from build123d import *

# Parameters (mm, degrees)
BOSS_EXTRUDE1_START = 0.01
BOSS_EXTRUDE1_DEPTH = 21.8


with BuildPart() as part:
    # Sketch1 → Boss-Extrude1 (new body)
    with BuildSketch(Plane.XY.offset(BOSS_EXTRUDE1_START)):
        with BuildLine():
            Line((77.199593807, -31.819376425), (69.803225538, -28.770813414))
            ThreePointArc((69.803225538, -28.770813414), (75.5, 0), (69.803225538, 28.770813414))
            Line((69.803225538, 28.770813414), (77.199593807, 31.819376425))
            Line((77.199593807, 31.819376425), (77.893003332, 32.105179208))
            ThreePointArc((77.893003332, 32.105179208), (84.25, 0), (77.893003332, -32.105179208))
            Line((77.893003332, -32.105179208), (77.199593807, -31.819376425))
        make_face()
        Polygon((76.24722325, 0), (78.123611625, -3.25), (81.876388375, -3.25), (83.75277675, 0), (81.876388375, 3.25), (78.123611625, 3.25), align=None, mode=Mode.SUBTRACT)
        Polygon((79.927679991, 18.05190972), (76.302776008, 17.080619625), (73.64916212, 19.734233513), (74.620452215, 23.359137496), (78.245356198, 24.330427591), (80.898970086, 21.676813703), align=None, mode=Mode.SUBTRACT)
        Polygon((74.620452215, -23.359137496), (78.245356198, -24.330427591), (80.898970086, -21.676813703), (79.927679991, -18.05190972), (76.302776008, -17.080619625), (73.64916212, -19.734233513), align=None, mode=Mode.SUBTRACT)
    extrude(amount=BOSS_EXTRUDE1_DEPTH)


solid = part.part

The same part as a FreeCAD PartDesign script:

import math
import FreeCAD as App
import Part
import Sketcher
from FreeCAD import Vector
Q = App.Units.Quantity

doc = App.newDocument("Part")
body = doc.addObject("PartDesign::Body", "Body")

# Sketch on XY plane
sketch1 = doc.addObject("Sketcher::SketchObject", "Sketch")
body.addObject(sketch1)
sketch1.AttachmentSupport = (doc.XY_Plane, [""])
sketch1.MapMode = "FlatFace"
sketch1.AttachmentOffset = App.Placement(Vector(0, 0, 0.01), App.Rotation())
sketch1.addGeometry([
    Part.LineSegment(Vector(69.803226, -28.770813, 0), Vector(77.199594, -31.819376, 0)),  # 0
    Part.LineSegment(Vector(77.199594, -31.819376, 0), Vector(77.893003, -32.105179, 0)),  # 1
    Part.ArcOfCircle(Part.Circle(Vector(0, 0, 0), Vector(0, 0, 1), 84.25), math.radians(-22.4), math.radians(22.4)),  # 2
    Part.LineSegment(Vector(77.893003, 32.105179, 0), Vector(77.199594, 31.819376, 0)),  # 3
    Part.LineSegment(Vector(77.199594, 31.819376, 0), Vector(69.803226, 28.770813, 0)),  # 4
    Part.ArcOfCircle(Part.Circle(Vector(0, 0, 0), Vector(0, 0, 1), 75.5), math.radians(-22.4), math.radians(22.4)),  # 5
    Part.LineSegment(Vector(74.620452, -23.359137, 0), Vector(73.649162, -19.734234, 0)),  # 6
    Part.LineSegment(Vector(73.649162, -19.734234, 0), Vector(76.302776, -17.08062, 0)),  # 7
    Part.LineSegment(Vector(76.302776, -17.08062, 0), Vector(79.92768, -18.05191, 0)),  # 8
    Part.LineSegment(Vector(79.92768, -18.05191, 0), Vector(80.89897, -21.676814, 0)),  # 9
    Part.LineSegment(Vector(80.89897, -21.676814, 0), Vector(78.245356, -24.330428, 0)),  # 10
    Part.LineSegment(Vector(78.245356, -24.330428, 0), Vector(74.620452, -23.359137, 0)),  # 11
    Part.LineSegment(Vector(76.247223, 0, 0), Vector(78.123612, 3.25, 0)),  # 12
    Part.LineSegment(Vector(78.123612, 3.25, 0), Vector(81.876388, 3.25, 0)),  # 13
    Part.LineSegment(Vector(81.876388, 3.25, 0), Vector(83.752777, 0, 0)),  # 14
    Part.LineSegment(Vector(83.752777, 0, 0), Vector(81.876388, -3.25, 0)),  # 15
    Part.LineSegment(Vector(81.876388, -3.25, 0), Vector(78.123612, -3.25, 0)),  # 16
    Part.LineSegment(Vector(78.123612, -3.25, 0), Vector(76.247223, 0, 0)),  # 17
    Part.LineSegment(Vector(79.92768, 18.05191, 0), Vector(76.302776, 17.08062, 0)),  # 18
    Part.LineSegment(Vector(76.302776, 17.08062, 0), Vector(73.649162, 19.734234, 0)),  # 19
    Part.LineSegment(Vector(73.649162, 19.734234, 0), Vector(74.620452, 23.359137, 0)),  # 20
    Part.LineSegment(Vector(74.620452, 23.359137, 0), Vector(78.245356, 24.330428, 0)),  # 21
    Part.LineSegment(Vector(78.245356, 24.330428, 0), Vector(80.89897, 21.676814, 0)),  # 22
    Part.LineSegment(Vector(80.89897, 21.676814, 0), Vector(79.92768, 18.05191, 0)),  # 23
], False)
sketch1.addConstraint([
    Sketcher.Constraint("Coincident", 0, 2, 1, 1),
    Sketcher.Constraint("Coincident", 1, 2, 2, 1),
    Sketcher.Constraint("Coincident", 2, 2, 3, 1),
    Sketcher.Constraint("Coincident", 3, 2, 4, 1),
    Sketcher.Constraint("Coincident", 4, 2, 5, 2),
    Sketcher.Constraint("Coincident", 5, 1, 0, 1),
    Sketcher.Constraint("Coincident", 6, 2, 7, 1),
    Sketcher.Constraint("Coincident", 7, 2, 8, 1),
    Sketcher.Constraint("Coincident", 8, 2, 9, 1),
    Sketcher.Constraint("Coincident", 9, 2, 10, 1),
    Sketcher.Constraint("Coincident", 10, 2, 11, 1),
    Sketcher.Constraint("Coincident", 11, 2, 6, 1),
    Sketcher.Constraint("Coincident", 12, 2, 13, 1),
    Sketcher.Constraint("Coincident", 13, 2, 14, 1),
    Sketcher.Constraint("Coincident", 14, 2, 15, 1),
    Sketcher.Constraint("Coincident", 15, 2, 16, 1),
    Sketcher.Constraint("Coincident", 16, 2, 17, 1),
    Sketcher.Constraint("Coincident", 17, 2, 12, 1),
    Sketcher.Constraint("Coincident", 18, 2, 19, 1),
    Sketcher.Constraint("Coincident", 19, 2, 20, 1),
    Sketcher.Constraint("Coincident", 20, 2, 21, 1),
    Sketcher.Constraint("Coincident", 21, 2, 22, 1),
    Sketcher.Constraint("Coincident", 22, 2, 23, 1),
    Sketcher.Constraint("Coincident", 23, 2, 18, 1),
    Sketcher.Constraint("Horizontal", 13),
    Sketcher.Constraint("Horizontal", 16),
    Sketcher.Constraint("Coincident", 2, 3, -1, 1),
    Sketcher.Constraint("Coincident", 5, 3, -1, 1),
    Sketcher.Constraint("Symmetric", 0, 2, 3, 2, -1),
    Sketcher.Constraint("Symmetric", 13, 2, 15, 2, -1),
    Sketcher.Constraint("Symmetric", 7, 2, 18, 2, -1),
    Sketcher.Constraint("Symmetric", 6, 2, 19, 2, -1),
    Sketcher.Constraint("Symmetric", 11, 2, 20, 2, -1),
    Sketcher.Constraint("Symmetric", 10, 2, 21, 2, -1),
    Sketcher.Constraint("Symmetric", 9, 2, 22, 2, -1),
    Sketcher.Constraint("Symmetric", 8, 2, 23, 2, -1),
    Sketcher.Constraint("PointOnObject", 14, 2, -1),
    Sketcher.Constraint("PointOnObject", 17, 2, -1),
    Sketcher.Constraint("Parallel", 0, 1),
    Sketcher.Constraint("Parallel", 3, 4),
    Sketcher.Constraint("Parallel", 6, 9),
    Sketcher.Constraint("Parallel", 7, 10),
    Sketcher.Constraint("Parallel", 8, 11),
    Sketcher.Constraint("Parallel", 12, 15),
    Sketcher.Constraint("Parallel", 14, 17),
    Sketcher.Constraint("Perpendicular", 9, 18),
    Sketcher.Constraint("Perpendicular", 10, 19),
    Sketcher.Constraint("Vertical", 4, 2, 5, 1),
    Sketcher.Constraint("Equal", 6, 7),
    Sketcher.Constraint("Equal", 7, 8),
    Sketcher.Constraint("Equal", 8, 9),
    Sketcher.Constraint("Equal", 11, 12),
    Sketcher.Constraint("Radius", 5, 75.5),
    Sketcher.Constraint("Angle", 6, Q("105 deg")),
    Sketcher.Constraint("Angle", 12, Q("60 deg")),
    Sketcher.Constraint("Radius", 2, 84.25),
    Sketcher.Constraint("Distance", 0, 8.0),
    Sketcher.Constraint("Angle", 0, Q("-22.4 deg")),
    Sketcher.Constraint("DistanceY", 15, 2, 13, 2, 6.5),
    Sketcher.Constraint("DistanceX", 7, 2, 14, 2, 7.450001),
    Sketcher.Constraint("DistanceX", 13, 1, 13, 2, 3.752777),
    Sketcher.Constraint("DistanceY", 1, 2, -1, 1, 32.105179),
    Sketcher.Constraint("DistanceY", 7, 2, -1, 1, 17.08062),
    Sketcher.Constraint("DistanceX", -1, 1, 8, 2, 79.92768),
])
pad1 = doc.addObject("PartDesign::Pad", "Pad")
body.addObject(pad1)
pad1.Profile = sketch1
pad1.Length = 21.8

doc.recompute()
